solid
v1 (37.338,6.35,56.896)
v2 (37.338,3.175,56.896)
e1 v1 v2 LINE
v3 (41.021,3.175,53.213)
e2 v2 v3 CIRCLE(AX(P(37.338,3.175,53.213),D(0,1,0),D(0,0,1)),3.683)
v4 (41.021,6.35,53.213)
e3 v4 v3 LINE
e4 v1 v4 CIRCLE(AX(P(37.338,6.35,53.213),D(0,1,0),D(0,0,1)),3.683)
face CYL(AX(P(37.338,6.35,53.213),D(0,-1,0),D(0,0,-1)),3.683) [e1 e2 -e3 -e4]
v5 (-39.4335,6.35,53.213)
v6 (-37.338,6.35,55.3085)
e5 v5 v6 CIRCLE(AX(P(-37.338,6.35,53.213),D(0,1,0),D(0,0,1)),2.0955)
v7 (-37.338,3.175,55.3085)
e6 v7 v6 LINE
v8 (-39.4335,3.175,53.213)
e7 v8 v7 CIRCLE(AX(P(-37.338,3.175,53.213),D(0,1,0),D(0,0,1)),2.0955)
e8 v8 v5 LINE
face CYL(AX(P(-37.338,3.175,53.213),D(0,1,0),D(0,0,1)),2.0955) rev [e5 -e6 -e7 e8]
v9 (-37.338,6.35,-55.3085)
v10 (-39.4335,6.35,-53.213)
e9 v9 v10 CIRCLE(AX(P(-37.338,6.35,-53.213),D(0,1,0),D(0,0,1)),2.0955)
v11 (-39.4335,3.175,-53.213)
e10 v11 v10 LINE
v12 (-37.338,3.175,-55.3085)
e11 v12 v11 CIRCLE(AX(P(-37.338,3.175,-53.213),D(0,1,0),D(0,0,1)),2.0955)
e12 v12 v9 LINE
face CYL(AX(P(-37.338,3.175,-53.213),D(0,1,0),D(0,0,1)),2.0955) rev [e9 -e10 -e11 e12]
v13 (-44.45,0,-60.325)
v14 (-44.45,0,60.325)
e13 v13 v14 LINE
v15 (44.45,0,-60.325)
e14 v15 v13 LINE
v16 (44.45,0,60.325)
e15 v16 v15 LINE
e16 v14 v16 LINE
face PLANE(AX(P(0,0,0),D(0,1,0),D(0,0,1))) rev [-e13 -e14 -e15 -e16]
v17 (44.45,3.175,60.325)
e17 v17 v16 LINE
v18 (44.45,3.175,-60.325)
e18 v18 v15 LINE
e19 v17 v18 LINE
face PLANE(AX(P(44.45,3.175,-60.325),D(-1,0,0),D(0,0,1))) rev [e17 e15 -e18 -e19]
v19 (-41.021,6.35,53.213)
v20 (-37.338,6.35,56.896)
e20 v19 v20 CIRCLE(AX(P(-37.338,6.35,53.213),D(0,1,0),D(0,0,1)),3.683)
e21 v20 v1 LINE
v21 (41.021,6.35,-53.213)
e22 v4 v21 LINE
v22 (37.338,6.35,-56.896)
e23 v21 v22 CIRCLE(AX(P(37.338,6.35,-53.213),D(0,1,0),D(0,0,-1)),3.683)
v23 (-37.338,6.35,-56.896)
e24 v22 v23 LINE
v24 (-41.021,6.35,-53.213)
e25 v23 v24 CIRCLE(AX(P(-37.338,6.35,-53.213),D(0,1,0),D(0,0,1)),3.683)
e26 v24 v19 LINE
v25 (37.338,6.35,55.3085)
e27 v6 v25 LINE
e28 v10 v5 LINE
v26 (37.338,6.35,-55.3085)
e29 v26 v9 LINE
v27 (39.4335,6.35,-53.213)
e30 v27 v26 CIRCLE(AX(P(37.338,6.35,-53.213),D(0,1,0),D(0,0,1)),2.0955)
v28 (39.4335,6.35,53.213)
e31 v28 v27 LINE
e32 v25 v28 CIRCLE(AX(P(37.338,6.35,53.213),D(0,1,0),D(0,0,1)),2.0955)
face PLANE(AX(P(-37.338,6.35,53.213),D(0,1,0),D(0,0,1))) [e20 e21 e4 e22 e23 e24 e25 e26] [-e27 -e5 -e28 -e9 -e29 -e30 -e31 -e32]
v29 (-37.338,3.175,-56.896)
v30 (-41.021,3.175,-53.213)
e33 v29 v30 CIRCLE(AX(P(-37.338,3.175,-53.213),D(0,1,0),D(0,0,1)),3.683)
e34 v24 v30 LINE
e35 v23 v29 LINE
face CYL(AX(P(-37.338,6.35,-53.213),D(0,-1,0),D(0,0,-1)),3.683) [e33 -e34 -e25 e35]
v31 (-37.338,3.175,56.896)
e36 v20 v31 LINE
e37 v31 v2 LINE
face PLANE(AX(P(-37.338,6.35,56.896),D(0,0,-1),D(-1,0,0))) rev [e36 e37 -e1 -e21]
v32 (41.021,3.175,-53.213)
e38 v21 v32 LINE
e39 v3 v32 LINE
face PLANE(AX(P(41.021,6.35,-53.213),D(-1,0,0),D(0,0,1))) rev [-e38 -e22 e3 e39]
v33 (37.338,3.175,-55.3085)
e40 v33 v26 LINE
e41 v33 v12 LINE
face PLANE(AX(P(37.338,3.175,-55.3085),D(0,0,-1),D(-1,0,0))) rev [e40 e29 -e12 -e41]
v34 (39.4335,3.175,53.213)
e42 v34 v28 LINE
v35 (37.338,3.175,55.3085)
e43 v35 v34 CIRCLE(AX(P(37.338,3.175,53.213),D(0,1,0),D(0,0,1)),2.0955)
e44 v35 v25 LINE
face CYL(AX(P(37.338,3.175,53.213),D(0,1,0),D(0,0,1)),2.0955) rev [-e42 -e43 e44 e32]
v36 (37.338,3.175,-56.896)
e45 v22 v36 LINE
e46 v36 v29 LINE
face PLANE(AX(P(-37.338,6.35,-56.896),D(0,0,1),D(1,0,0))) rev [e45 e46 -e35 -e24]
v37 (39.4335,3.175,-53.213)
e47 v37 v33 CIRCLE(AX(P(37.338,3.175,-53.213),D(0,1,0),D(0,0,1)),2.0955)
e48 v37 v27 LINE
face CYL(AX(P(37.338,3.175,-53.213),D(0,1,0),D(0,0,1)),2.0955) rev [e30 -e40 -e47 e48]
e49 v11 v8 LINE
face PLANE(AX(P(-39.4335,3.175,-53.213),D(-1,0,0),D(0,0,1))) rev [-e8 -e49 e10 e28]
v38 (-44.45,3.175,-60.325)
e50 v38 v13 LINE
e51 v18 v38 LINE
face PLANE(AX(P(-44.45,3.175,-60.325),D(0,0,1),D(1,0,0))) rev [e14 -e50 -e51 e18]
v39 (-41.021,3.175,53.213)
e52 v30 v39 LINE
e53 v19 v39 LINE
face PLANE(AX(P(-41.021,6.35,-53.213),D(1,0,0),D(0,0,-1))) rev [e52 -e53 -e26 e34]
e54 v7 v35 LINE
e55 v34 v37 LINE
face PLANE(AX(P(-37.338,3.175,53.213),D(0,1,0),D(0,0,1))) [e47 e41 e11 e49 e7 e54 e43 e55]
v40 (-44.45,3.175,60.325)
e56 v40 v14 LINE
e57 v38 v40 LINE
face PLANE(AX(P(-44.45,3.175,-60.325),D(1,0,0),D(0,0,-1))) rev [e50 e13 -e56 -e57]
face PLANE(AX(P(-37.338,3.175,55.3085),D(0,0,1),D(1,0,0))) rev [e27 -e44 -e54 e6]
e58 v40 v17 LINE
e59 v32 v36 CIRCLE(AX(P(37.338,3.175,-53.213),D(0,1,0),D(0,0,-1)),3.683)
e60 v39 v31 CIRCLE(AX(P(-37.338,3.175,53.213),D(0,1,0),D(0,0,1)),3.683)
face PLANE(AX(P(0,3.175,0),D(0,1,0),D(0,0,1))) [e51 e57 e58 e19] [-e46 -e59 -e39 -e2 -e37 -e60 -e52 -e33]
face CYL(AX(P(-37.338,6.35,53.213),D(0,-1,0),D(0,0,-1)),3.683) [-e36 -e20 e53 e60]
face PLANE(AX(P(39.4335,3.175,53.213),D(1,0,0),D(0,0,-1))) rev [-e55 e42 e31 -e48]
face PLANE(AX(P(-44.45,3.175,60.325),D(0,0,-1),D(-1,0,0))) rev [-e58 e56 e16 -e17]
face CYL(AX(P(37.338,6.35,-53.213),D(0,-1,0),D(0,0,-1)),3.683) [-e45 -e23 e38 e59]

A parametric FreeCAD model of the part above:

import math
import FreeCAD as App
import Part
import Sketcher
from FreeCAD import Vector
Q = App.Units.Quantity


def add_polygon(sketch, points):
    """Adds a closed chain of lines whose ends are joined by coincident constraints."""
    first, n = sketch.GeometryCount, len(points)
    for a, b in zip(points, points[1:] + points[:1]):
        sketch.addGeometry(Part.LineSegment(App.Vector(*a, 0), App.Vector(*b, 0)), False)
    for i in range(n):
        sketch.addConstraint(Sketcher.Constraint("Coincident", first + i, 2, first + (i + 1) % n, 1))

doc = App.newDocument("Part")
params = doc.addObject("Spreadsheet::Sheet", "Params")
for row, (alias, value) in enumerate([
    ("sketch1_width", "3.5 in"),
    ("sketch1_height", "4.75 in"),
    ("pad1_length", "0.125 in"),
    ("sketch2_radius", "0.145 in"),
    ("sketch2_width", "2.94 in"),
    ("sketch2_height", "4.19 in"),
    ("pad2_length", "0.125 in"),
    ("sketch3_width", "2.94 in"),
    ("sketch3_height", "4.19 in"),
    ("pocket1_length", "0.125 in"),
], start=1):
    params.set(f"A{row}", alias)
    params.set(f"B{row}", "=" + value)
    params.setAlias(f"B{row}", alias)

body = doc.addObject("PartDesign::Body", "Body")

# Sketch on XZ plane
sketch1 = body.newObject("Sketcher::SketchObject", "Sketch")
sketch1.AttachmentSupport = (doc.getObject("XZ_Plane"), [""])
sketch1.MapMode = "FlatFace"
add_polygon(sketch1, [(-44.45, -60.325), (-44.45, 60.325), (44.45, 60.325), (44.45, -60.325)])  # lines 0-3
sketch1.addConstraint([
    Sketcher.Constraint("Vertical", 0),
    Sketcher.Constraint("Horizontal", 1),
    Sketcher.Constraint("Vertical", 2),
    Sketcher.Constraint("Horizontal", 3),
    Sketcher.Constraint("Symmetric", 0, 2, 2, 2, -1, 1),
    Sketcher.Constraint("DistanceX", 1, 1, 1, 2, Q("3.5 in")),
    Sketcher.Constraint("DistanceY", 0, 1, 0, 2, Q("4.75 in")),
])
sketch1.setExpression("Constraints[9]", "Params.sketch1_width")
sketch1.setExpression("Constraints[10]", "Params.sketch1_height")
pad1 = body.newObject("PartDesign::Pad", "Pad")
pad1.Profile = sketch1
pad1.setExpression("Length", "Params.pad1_length")
pad1.Reversed = True

# Sketch on XZ plane
sketch2 = body.newObject("Sketcher::SketchObject", "Sketch001")
sketch2.AttachmentSupport = (doc.getObject("XZ_Plane"), [""])
sketch2.MapMode = "FlatFace"
sketch2.AttachmentOffset = App.Placement(Vector(0, 0, -0.125 * 25.4), App.Rotation())
sketch2.addGeometry([
    Part.LineSegment(Vector(37.338, -56.896, 0), Vector(-37.338, -56.896, 0)),  # 0
    Part.ArcOfCircle(Part.Circle(Vector(-37.338, -53.213, 0), Vector(0, 0, 1), 3.683), math.radians(180), math.radians(270)),  # 1
    Part.LineSegment(Vector(-41.021, -53.213, 0), Vector(-41.021, 53.213, 0)),  # 2
    Part.ArcOfCircle(Part.Circle(Vector(-37.338, 53.213, 0), Vector(0, 0, 1), 3.683), math.radians(90), math.radians(180)),  # 3
    Part.LineSegment(Vector(-37.338, 56.896, 0), Vector(37.338, 56.896, 0)),  # 4
    Part.ArcOfCircle(Part.Circle(Vector(37.338, 53.213, 0), Vector(0, 0, 1), 3.683), math.radians(0), math.radians(90)),  # 5
    Part.LineSegment(Vector(41.021, 53.213, 0), Vector(41.021, -53.213, 0)),  # 6
    Part.ArcOfCircle(Part.Circle(Vector(37.338, -53.213, 0), Vector(0, 0, 1), 3.683), math.radians(-90), math.radians(0)),  # 7
], False)
sketch2.addConstraint([
    Sketcher.Constraint("Tangent", 0, 2, 1, 2),
    Sketcher.Constraint("Tangent", 1, 1, 2, 1),
    Sketcher.Constraint("Tangent", 2, 2, 3, 2),
    Sketcher.Constraint("Tangent", 3, 1, 4, 1),
    Sketcher.Constraint("Tangent", 4, 2, 5, 2),
    Sketcher.Constraint("Tangent", 5, 1, 6, 1),
    Sketcher.Constraint("Tangent", 6, 2, 7, 2),
    Sketcher.Constraint("Tangent", 7, 1, 0, 1),
    Sketcher.Constraint("Horizontal", 0),
    Sketcher.Constraint("Vertical", 2),
    Sketcher.Constraint("Horizontal", 4),
    Sketcher.Constraint("Vertical", 6),
    Sketcher.Constraint("Equal", 1, 3),
    Sketcher.Constraint("Equal", 3, 5),
    Sketcher.Constraint("Equal", 5, 7),
    Sketcher.Constraint("Symmetric", 1, 3, 5, 3, -1, 1),
    Sketcher.Constraint("Radius", 1, Q("0.145 in")),
    Sketcher.Constraint("DistanceX", 0, 2, 0, 1, Q("2.94 in")),
    Sketcher.Constraint("DistanceY", 2, 1, 2, 2, Q("4.19 in")),
])
sketch2.setExpression("Constraints[16]", "Params.sketch2_radius")
sketch2.setExpression("Constraints[17]", "Params.sketch2_width")
sketch2.setExpression("Constraints[18]", "Params.sketch2_height")
pad2 = body.newObject("PartDesign::Pad", "Pad001")
pad2.Profile = sketch2
pad2.setExpression("Length", "Params.pad2_length")
pad2.Reversed = True

# Sketch on XZ plane
sketch3 = body.newObject("Sketcher::SketchObject", "Sketch002")
sketch3.AttachmentSupport = (doc.getObject("XZ_Plane"), [""])
sketch3.MapMode = "FlatFace"
sketch3.AttachmentOffset = App.Placement(Vector(0, 0, -0.25 * 25.4), App.Rotation())
sketch3.addGeometry([
    Part.LineSegment(Vector(-37.338, 55.3085, 0), Vector(37.338, 55.3085, 0)),  # 0
    Part.ArcOfCircle(Part.Circle(Vector(37.338, 53.213, 0), Vector(0, 0, 1), 2.0955), math.radians(0), math.radians(90)),  # 1
    Part.LineSegment(Vector(39.4335, 53.213, 0), Vector(39.4335, -53.213, 0)),  # 2
    Part.ArcOfCircle(Part.Circle(Vector(37.338, -53.213, 0), Vector(0, 0, 1), 2.0955), math.radians(-90), math.radians(0)),  # 3
    Part.LineSegment(Vector(37.338, -55.3085, 0), Vector(-37.338, -55.3085, 0)),  # 4
    Part.ArcOfCircle(Part.Circle(Vector(-37.338, -53.213, 0), Vector(0, 0, 1), 2.0955), math.radians(180), math.radians(270)),  # 5
    Part.LineSegment(Vector(-39.4335, -53.213, 0), Vector(-39.4335, 53.213, 0)),  # 6
    Part.ArcOfCircle(Part.Circle(Vector(-37.338, 53.213, 0), Vector(0, 0, 1), 2.0955), math.radians(90), math.radians(180)),  # 7
], False)
sketch3.addConstraint([
    Sketcher.Constraint("Tangent", 0, 2, 1, 2),
    Sketcher.Constraint("Tangent", 1, 1, 2, 1),
    Sketcher.Constraint("Tangent", 2, 2, 3, 2),
    Sketcher.Constraint("Tangent", 3, 1, 4, 1),
    Sketcher.Constraint("Tangent", 4, 2, 5, 2),
    Sketcher.Constraint("Tangent", 5, 1, 6, 1),
    Sketcher.Constraint("Tangent", 6, 2, 7, 2),
    Sketcher.Constraint("Tangent", 7, 1, 0, 1),
    Sketcher.Constraint("Horizontal", 0),
    Sketcher.Constraint("Vertical", 2),
    Sketcher.Constraint("Horizontal", 4),
    Sketcher.Constraint("Vertical", 6),
    Sketcher.Constraint("Equal", 1, 3),
    Sketcher.Constraint("Equal", 3, 5),
    Sketcher.Constraint("Equal", 5, 7),
    Sketcher.Constraint("Symmetric", 1, 3, 5, 3, -1, 1),
    Sketcher.Constraint("DistanceX", 0, 1, 0, 2, Q("2.94 in")),
    Sketcher.Constraint("DistanceY", 2, 2, 2, 1, Q("4.19 in")),
    Sketcher.Constraint("Radius", 1, Q("0.0825 in")),
])
sketch3.setExpression("Constraints[16]", "Params.sketch3_width")
sketch3.setExpression("Constraints[17]", "Params.sketch3_height")
pocket1 = body.newObject("PartDesign::Pocket", "Pocket")
pocket1.Profile = sketch3
pocket1.setExpression("Length", "Params.pocket1_length")
pocket1.Reversed = True

doc.recompute()
